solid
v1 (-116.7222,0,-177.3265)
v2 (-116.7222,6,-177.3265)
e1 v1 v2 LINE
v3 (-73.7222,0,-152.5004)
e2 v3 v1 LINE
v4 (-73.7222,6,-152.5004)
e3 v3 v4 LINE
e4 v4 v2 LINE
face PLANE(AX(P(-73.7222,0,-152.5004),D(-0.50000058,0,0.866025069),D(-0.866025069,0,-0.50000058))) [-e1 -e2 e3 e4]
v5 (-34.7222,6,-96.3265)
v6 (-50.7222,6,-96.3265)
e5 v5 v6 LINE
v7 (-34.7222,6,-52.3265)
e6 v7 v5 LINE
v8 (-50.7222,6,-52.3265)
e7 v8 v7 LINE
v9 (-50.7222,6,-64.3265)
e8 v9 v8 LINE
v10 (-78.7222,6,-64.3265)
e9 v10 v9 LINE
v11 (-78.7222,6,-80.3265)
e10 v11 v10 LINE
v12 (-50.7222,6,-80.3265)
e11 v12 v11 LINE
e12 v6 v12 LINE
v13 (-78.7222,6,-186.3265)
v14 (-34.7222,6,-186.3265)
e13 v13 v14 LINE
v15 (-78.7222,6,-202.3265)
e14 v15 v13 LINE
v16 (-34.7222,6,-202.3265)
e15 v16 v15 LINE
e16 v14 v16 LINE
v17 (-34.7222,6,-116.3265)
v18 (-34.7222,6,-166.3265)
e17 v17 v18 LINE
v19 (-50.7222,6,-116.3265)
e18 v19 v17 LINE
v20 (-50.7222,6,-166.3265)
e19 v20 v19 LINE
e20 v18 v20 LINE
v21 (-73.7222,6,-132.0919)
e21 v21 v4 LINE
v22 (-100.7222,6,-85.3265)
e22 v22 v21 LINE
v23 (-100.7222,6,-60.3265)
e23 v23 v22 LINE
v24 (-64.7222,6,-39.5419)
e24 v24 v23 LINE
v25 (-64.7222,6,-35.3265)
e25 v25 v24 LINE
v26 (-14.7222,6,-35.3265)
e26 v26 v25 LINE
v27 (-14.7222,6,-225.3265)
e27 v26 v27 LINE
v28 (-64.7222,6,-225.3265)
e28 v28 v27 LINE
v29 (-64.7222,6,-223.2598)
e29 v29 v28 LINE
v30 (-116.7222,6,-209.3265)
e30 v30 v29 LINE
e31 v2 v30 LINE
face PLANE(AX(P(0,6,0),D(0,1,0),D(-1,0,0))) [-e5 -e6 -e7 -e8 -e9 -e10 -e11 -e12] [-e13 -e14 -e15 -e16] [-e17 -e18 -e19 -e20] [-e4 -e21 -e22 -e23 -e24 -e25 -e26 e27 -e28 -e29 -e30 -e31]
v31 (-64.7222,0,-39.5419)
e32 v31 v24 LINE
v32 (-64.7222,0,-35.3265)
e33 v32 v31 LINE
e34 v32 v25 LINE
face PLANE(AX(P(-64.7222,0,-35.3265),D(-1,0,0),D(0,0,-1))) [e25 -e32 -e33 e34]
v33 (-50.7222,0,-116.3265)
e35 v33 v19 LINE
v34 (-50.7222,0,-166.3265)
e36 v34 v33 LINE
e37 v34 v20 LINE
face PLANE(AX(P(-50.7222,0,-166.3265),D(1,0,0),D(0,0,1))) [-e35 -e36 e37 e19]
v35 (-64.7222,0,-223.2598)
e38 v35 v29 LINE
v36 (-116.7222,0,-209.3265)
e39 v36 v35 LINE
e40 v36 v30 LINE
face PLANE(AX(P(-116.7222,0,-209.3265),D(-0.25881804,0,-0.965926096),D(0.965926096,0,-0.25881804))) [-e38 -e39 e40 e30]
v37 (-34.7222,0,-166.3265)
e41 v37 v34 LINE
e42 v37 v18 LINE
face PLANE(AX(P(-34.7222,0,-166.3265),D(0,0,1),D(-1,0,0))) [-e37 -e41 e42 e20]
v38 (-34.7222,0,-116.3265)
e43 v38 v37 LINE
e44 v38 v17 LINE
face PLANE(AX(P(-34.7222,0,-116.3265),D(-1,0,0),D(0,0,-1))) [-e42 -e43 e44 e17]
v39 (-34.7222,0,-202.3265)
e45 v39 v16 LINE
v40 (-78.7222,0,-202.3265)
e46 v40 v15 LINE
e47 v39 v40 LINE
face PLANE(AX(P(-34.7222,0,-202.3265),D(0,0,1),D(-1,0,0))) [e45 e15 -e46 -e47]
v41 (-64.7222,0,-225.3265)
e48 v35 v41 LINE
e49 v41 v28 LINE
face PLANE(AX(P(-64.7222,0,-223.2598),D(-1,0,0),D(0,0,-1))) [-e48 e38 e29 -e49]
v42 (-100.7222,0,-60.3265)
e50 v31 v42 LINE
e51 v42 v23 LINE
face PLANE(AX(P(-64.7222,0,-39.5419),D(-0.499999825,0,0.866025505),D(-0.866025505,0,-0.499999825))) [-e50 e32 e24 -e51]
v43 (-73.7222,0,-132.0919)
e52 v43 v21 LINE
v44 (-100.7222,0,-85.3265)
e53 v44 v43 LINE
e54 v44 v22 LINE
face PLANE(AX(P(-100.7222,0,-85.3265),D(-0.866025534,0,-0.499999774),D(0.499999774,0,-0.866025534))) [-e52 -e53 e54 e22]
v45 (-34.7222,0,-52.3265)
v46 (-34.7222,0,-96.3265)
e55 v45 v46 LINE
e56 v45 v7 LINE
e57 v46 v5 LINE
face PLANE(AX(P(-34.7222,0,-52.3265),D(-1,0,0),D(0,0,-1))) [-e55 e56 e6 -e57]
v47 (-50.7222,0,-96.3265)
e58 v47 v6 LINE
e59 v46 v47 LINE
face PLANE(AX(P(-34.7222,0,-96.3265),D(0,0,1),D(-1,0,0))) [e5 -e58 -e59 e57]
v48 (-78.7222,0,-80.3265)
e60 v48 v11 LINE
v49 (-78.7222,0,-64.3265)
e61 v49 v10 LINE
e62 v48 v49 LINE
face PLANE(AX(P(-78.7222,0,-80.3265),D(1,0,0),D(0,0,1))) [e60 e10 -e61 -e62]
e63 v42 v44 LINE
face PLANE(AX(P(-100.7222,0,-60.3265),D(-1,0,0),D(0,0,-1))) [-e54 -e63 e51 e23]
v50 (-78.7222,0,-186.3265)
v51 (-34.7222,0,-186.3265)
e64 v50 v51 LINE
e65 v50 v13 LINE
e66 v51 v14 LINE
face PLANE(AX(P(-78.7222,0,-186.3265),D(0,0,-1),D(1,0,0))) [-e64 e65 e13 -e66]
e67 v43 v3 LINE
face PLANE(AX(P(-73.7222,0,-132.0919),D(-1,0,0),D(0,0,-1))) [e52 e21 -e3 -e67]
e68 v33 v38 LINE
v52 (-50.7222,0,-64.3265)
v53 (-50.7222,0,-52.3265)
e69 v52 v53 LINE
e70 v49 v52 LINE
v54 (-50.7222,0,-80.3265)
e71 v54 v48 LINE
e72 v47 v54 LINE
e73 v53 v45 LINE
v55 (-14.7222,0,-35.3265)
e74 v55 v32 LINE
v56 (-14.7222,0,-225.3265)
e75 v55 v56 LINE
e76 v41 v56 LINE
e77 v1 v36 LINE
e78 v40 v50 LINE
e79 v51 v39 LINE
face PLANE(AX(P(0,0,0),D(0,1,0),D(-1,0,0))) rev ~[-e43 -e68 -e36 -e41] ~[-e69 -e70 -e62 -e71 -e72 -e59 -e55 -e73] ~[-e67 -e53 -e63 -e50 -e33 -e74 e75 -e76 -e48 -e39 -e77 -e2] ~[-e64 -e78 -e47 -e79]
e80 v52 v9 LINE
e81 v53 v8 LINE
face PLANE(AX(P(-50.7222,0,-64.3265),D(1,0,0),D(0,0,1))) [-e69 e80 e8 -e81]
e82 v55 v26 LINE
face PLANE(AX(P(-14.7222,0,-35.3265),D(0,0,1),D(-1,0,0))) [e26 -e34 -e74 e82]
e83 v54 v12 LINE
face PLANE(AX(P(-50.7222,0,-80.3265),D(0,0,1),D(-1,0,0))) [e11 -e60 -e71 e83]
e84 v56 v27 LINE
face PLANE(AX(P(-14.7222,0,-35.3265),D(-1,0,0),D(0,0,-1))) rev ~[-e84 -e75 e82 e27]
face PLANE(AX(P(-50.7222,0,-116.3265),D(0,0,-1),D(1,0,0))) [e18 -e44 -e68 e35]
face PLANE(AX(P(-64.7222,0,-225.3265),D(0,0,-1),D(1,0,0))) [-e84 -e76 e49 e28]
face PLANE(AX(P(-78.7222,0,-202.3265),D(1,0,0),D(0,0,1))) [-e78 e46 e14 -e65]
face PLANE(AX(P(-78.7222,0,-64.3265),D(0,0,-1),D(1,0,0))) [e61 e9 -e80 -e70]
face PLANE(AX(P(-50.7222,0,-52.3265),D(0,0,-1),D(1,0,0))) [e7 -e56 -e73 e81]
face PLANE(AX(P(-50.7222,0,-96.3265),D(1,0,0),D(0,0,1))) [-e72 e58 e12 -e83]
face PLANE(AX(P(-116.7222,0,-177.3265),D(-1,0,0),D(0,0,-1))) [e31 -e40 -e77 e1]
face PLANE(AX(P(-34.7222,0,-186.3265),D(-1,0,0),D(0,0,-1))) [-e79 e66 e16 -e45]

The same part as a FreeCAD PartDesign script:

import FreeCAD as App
import Part
import Sketcher
Q = App.Units.Quantity


def add_polygon(sketch, points):
    """Adds a closed chain of lines whose ends are joined by coincident constraints."""
    first, n = sketch.GeometryCount, len(points)
    for a, b in zip(points, points[1:] + points[:1]):
        sketch.addGeometry(Part.LineSegment(App.Vector(*a, 0), App.Vector(*b, 0)), False)
    for i in range(n):
        sketch.addConstraint(Sketcher.Constraint("Coincident", first + i, 2, first + (i + 1) % n, 1))

doc = App.newDocument("Part")
body = doc.addObject("PartDesign::Body", "Body")

# Sketch on XZ plane
sketch1 = body.newObject("Sketcher::SketchObject", "Sketch")
sketch1.AttachmentSupport = (doc.getObject("XZ_Plane"), [""])
sketch1.MapMode = "FlatFace"
add_polygon(sketch1, [(-64.7, -35.3), (-14.7, -35.3), (-14.7, -225.3), (-64.7, -225.3), (-64.7, -223.3), (-116.7, -209.3), (-116.7, -177.3), (-73.7, -152.5), (-73.7, -132.1), (-100.7, -85.3), (-100.7, -60.3), (-64.7, -39.5)])  # lines 0-11
add_polygon(sketch1, [(-34.7, -186.3), (-78.7, -186.3), (-78.7, -202.3), (-34.7, -202.3)])  # lines 12-15
add_polygon(sketch1, [(-34.7, -116.3), (-50.7, -116.3), (-50.7, -166.3), (-34.7, -166.3)])  # lines 16-19
add_polygon(sketch1, [(-50.7, -64.3), (-78.7, -64.3), (-78.7, -80.3), (-50.7, -80.3), (-50.7, -96.3), (-34.7, -96.3), (-34.7, -52.3), (-50.7, -52.3)])  # lines 20-27
sketch1.addConstraint([
    Sketcher.Constraint("Horizontal", 0),
    Sketcher.Constraint("Vertical", 1),
    Sketcher.Constraint("Horizontal", 2),
    Sketcher.Constraint("Vertical", 3),
    Sketcher.Constraint("Vertical", 5),
    Sketcher.Constraint("Vertical", 7),
    Sketcher.Constraint("Vertical", 9),
    Sketcher.Constraint("Vertical", 11),
    Sketcher.Constraint("Horizontal", 12),
    Sketcher.Constraint("Vertical", 13),
    Sketcher.Constraint("Horizontal", 14),
    Sketcher.Constraint("Vertical", 15),
    Sketcher.Constraint("Horizontal", 16),
    Sketcher.Constraint("Vertical", 17),
    Sketcher.Constraint("Horizontal", 18),
    Sketcher.Constraint("Vertical", 19),
    Sketcher.Constraint("Horizontal", 20),
    Sketcher.Constraint("Vertical", 21),
    Sketcher.Constraint("Horizontal", 22),
    Sketcher.Constraint("Vertical", 23),
    Sketcher.Constraint("Horizontal", 24),
    Sketcher.Constraint("Vertical", 25),
    Sketcher.Constraint("Horizontal", 26),
    Sketcher.Constraint("Vertical", 27),
    Sketcher.Constraint("Perpendicular", 6, 8),
    Sketcher.Constraint("Perpendicular", 8, 10),
    Sketcher.Constraint("Vertical", 3, 2, 10, 2),
    Sketcher.Constraint("Vertical", 15, 2, 18, 2),
    Sketcher.Constraint("Vertical", 13, 2, 20, 2),
    Sketcher.Constraint("Vertical", 17, 2, 22, 2),
    Sketcher.Constraint("Vertical", 19, 2, 24, 2),
    Sketcher.Constraint("Vertical", 23, 2, 26, 2),
    Sketcher.Constraint("Equal", 26, 13),
    Sketcher.Constraint("Equal", 2, 17),
    Sketcher.Constraint("Equal", 15, 21),
    Sketcher.Constraint("Equal", 21, 23),
    Sketcher.Constraint("Equal", 14, 25),
    Sketcher.Constraint("DistanceX", 0, 1, 0, 2, Q("50 mm")),
    Sketcher.Constraint("DistanceX", 12, 2, 12, 1, Q("44 mm")),
    Sketcher.Constraint("DistanceX", 16, 2, 16, 1, Q("16 mm")),
    Sketcher.Constraint("DistanceY", 5, 1, 5, 2, Q("32 mm")),
    Sketcher.Constraint("DistanceY", 9, 1, 9, 2, Q("25 mm")),
    Sketcher.Constraint("Angle", 8, Q("120 deg")),
    Sketcher.Constraint("DistanceY", 2, 2, 4, 2, Q("16 mm")),
    Sketcher.Constraint("DistanceX", 4, 2, 1, 2, Q("102 mm")),
    Sketcher.Constraint("DistanceX", 5, 2, 6, 2, Q("43 mm")),
    Sketcher.Constraint("DistanceX", 5, 2, 8, 2, Q("16 mm")),
    Sketcher.Constraint("DistanceY", 5, 2, 8, 2, Q("92 mm")),
    Sketcher.Constraint("DistanceY", 8, 2, 0, 2, Q("50 mm")),
    Sketcher.Constraint("DistanceY", 13, 2, 5, 2, Q("25 mm")),
    Sketcher.Constraint("DistanceX", 14, 2, 1, 2, Q("20 mm")),
    Sketcher.Constraint("DistanceY", 15, 2, 17, 2, Q("20 mm")),
    Sketcher.Constraint("DistanceY", 21, 2, 9, 2, Q("20 mm")),
    Sketcher.Constraint("Angle", 4, Q("165 deg")),
    Sketcher.Constraint("DistanceX", 0, 2, -1, 1, Q("14.7222 mm")),
    Sketcher.Constraint("DistanceY", 0, 2, -1, 1, Q("35.3265 mm")),
])
pad1 = body.newObject("PartDesign::Pad", "Pad")
pad1.Profile = sketch1
pad1.Length = 6
pad1.Reversed = True

doc.recompute()
